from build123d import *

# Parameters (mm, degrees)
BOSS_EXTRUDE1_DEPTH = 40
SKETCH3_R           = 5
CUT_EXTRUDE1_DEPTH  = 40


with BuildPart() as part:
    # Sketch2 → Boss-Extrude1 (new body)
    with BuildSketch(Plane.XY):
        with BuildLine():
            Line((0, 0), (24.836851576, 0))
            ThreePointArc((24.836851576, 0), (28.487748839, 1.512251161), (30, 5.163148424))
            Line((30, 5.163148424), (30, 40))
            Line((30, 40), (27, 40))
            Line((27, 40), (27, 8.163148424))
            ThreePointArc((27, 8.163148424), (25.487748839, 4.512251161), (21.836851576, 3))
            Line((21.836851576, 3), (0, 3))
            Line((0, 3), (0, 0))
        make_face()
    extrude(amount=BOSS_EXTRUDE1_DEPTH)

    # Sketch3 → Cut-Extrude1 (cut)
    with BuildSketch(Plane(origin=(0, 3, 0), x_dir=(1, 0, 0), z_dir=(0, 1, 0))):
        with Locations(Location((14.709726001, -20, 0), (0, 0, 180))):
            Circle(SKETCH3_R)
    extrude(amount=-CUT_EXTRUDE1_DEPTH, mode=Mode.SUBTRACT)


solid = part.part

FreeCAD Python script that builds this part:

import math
import FreeCAD as App
import Part
import Sketcher
Q = App.Units.Quantity

doc = App.newDocument("Part")
params = doc.addObject("Spreadsheet::Sheet", "Params")
for row, (alias, value) in enumerate([
    ("sketch1_width", "3 mm"),
    ("pad1_length", "40 mm"),
    ("sketch2_diameter", "10 mm"),
    ("pocket1_length", "40 mm"),
], start=1):
    params.set(f"A{row}", alias)
    params.set(f"B{row}", "=" + value)
    params.setAlias(f"B{row}", alias)

body = doc.addObject("PartDesign::Body", "Body")

# Sketch on XY plane
sketch1 = body.newObject("Sketcher::SketchObject", "Sketch")
sketch1.AttachmentSupport = (doc.getObject("XY_Plane"), [""])
sketch1.MapMode = "FlatFace"
sketch1.addGeometry([
    Part.LineSegment(App.Vector(0, 0, 0), App.Vector(24.8, 0, 0)),  # 0
    Part.ArcOfCircle(Part.Circle(App.Vector(24.8, 5.2, 0), App.Vector(0, 0, 1), 5.2), math.radians(-90), math.radians(0)),  # 1
    Part.LineSegment(App.Vector(30, 5.2, 0), App.Vector(30, 40, 0)),  # 2
    Part.LineSegment(App.Vector(30, 40, 0), App.Vector(27, 40, 0)),  # 3
    Part.LineSegment(App.Vector(27, 40, 0), App.Vector(27, 8.2, 0)),  # 4
    Part.ArcOfCircle(Part.Circle(App.Vector(21.8, 8.2, 0), App.Vector(0, 0, 1), 5.2), math.radians(-90), math.radians(0)),  # 5
    Part.LineSegment(App.Vector(21.8, 3, 0), App.Vector(0, 3, 0)),  # 6
    Part.LineSegment(App.Vector(0, 3, 0), App.Vector(0, 0, 0)),  # 7
], False)
sketch1.addConstraint([
    Sketcher.Constraint("Tangent", 0, 2, 1, 1),
    Sketcher.Constraint("Tangent", 1, 2, 2, 1),
    Sketcher.Constraint("Coincident", 2, 2, 3, 1),
    Sketcher.Constraint("Coincident", 3, 2, 4, 1),
    Sketcher.Constraint("Tangent", 4, 2, 5, 2),
    Sketcher.Constraint("Tangent", 5, 1, 6, 1),
    Sketcher.Constraint("Coincident", 6, 2, 7, 1),
    Sketcher.Constraint("Coincident", 7, 2, 0, 1),
    Sketcher.Constraint("Horizontal", 0),
    Sketcher.Constraint("Vertical", 2),
    Sketcher.Constraint("Horizontal", 3),
    Sketcher.Constraint("Vertical", 4),
    Sketcher.Constraint("Horizontal", 6),
    Sketcher.Constraint("Vertical", 7),
    Sketcher.Constraint("Coincident", 7, 2, -1, 1),
    Sketcher.Constraint("Equal", 1, 5),
    Sketcher.Constraint("Equal", 3, 7),
    Sketcher.Constraint("DistanceX", 3, 2, 3, 1, Q("3 mm")),
    Sketcher.Constraint("DistanceX", -1, 1, 1, 2, Q("30 mm")),
    Sketcher.Constraint("DistanceY", -1, 1, 2, 2, Q("40 mm")),
    Sketcher.Constraint("Radius", 1, Q("5.163148 mm")),
])
sketch1.setExpression("Constraints[17]", "Params.sketch1_width")
pad1 = body.newObject("PartDesign::Pad", "Pad")
pad1.Profile = sketch1
pad1.setExpression("Length", "Params.pad1_length")

# Sketch on XZ plane
sketch2 = body.newObject("Sketcher::SketchObject", "Sketch001")
sketch2.AttachmentSupport = (doc.getObject("XZ_Plane"), [""])
sketch2.MapMode = "FlatFace"
sketch2.AttachmentOffset = App.Placement(App.Vector(0, 0, -3), App.Rotation())
sketch2.addGeometry(Part.Circle(App.Vector(15, 20, 0), App.Vector(0, 0, 1), 5), False)
sketch2.addConstraint([
    Sketcher.Constraint("Diameter", 0, Q("10 mm")),
    Sketcher.Constraint("DistanceY", -1, 1, 0, 3, Q("20 mm")),
    Sketcher.Constraint("DistanceX", -1, 1, 0, 3, Q("14.709726 mm")),
])
sketch2.setExpression("Constraints[0]", "Params.sketch2_diameter")
pocket1 = body.newObject("PartDesign::Pocket", "Pocket")
pocket1.Profile = sketch2
pocket1.setExpression("Length", "Params.pocket1_length")
pocket1.Reversed = True

doc.recompute()
